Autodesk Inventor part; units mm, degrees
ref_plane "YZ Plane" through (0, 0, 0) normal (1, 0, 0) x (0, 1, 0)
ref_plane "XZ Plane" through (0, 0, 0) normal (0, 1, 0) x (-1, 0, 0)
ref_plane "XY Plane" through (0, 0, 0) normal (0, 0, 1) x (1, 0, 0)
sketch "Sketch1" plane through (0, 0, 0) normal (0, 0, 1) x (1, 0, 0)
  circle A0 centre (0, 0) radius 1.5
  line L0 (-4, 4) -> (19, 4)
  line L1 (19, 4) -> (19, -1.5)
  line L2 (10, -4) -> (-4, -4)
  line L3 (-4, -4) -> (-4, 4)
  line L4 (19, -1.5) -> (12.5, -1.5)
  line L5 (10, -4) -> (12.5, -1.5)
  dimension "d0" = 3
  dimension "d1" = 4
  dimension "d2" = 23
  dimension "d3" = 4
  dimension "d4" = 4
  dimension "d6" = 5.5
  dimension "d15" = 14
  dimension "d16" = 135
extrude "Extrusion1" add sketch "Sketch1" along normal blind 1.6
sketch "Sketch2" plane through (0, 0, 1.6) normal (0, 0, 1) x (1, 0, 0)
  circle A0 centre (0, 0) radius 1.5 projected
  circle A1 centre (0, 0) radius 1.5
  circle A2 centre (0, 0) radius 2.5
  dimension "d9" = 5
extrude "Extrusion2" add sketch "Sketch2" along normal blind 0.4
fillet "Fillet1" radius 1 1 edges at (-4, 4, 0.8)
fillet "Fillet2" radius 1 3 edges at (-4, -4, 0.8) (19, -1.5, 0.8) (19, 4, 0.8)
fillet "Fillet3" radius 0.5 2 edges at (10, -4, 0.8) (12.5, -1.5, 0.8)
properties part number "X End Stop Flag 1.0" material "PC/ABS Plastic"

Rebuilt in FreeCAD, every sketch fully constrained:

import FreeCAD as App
import Part
import Sketcher
from FreeCAD import Vector
Q = App.Units.Quantity


def edges_at(feature, points):
    """Names of the edges that pass closest to the given points."""
    edges = feature.Shape.Edges
    near = lambda p: min(range(len(edges)), key=lambda i: edges[i].distToShape(Part.Vertex(*p))[0])
    return sorted({f"Edge{near(p) + 1}" for p in points})


def add_polygon(sketch, points):
    """Adds a closed chain of lines whose ends are joined by coincident constraints."""
    first, n = sketch.GeometryCount, len(points)
    for a, b in zip(points, points[1:] + points[:1]):
        sketch.addGeometry(Part.LineSegment(App.Vector(*a, 0), App.Vector(*b, 0)), False)
    for i in range(n):
        sketch.addConstraint(Sketcher.Constraint("Coincident", first + i, 2, first + (i + 1) % n, 1))

doc = App.newDocument("Part")
body = doc.addObject("PartDesign::Body", "Body")

# Sketch on XY plane
sketch1 = body.newObject("Sketcher::SketchObject", "Sketch")
sketch1.AttachmentSupport = (doc.getObject("XY_Plane"), [""])
sketch1.MapMode = "FlatFace"
add_polygon(sketch1, [(19, 4), (-4, 4), (-4, -4), (10, -4), (12.5, -1.5), (19, -1.5)])  # lines 0-5
sketch1.addGeometry(Part.Circle(Vector(0, 0, 0), Vector(0, 0, 1), 1.5), False)  # 6
sketch1.addConstraint([
    Sketcher.Constraint("Horizontal", 0),
    Sketcher.Constraint("Vertical", 1),
    Sketcher.Constraint("Horizontal", 2),
    Sketcher.Constraint("Horizontal", 4),
    Sketcher.Constraint("Vertical", 5),
    Sketcher.Constraint("Coincident", 6, 3, -1, 1),
    Sketcher.Constraint("Diameter", 6, Q("3 mm")),
    Sketcher.Constraint("DistanceX", 0, 2, 0, 1, Q("23 mm")),
    Sketcher.Constraint("DistanceX", 2, 1, 2, 2, Q("14 mm")),
    Sketcher.Constraint("DistanceY", 5, 1, 5, 2, Q("5.5 mm")),
    Sketcher.Constraint("DistanceX", 0, 2, -1, 1, Q("4 mm")),
    Sketcher.Constraint("DistanceY", -1, 1, 0, 2, Q("4 mm")),
    Sketcher.Constraint("DistanceY", 1, 2, -1, 1, Q("4 mm")),
    Sketcher.Constraint("Angle", 3, Q("45 deg")),
])
pad1 = body.newObject("PartDesign::Pad", "Pad")
pad1.Profile = sketch1
pad1.Length = 1.6

# Sketch on XY plane
sketch2 = body.newObject("Sketcher::SketchObject", "Sketch001")
sketch2.AttachmentSupport = (doc.getObject("XY_Plane"), [""])
sketch2.MapMode = "FlatFace"
sketch2.AttachmentOffset = App.Placement(Vector(0, 0, 1.6), App.Rotation())
sketch2.addGeometry([
    Part.Circle(Vector(0, 0, 0), Vector(0, 0, 1), 2.5),
    Part.Circle(Vector(0, 0, 0), Vector(0, 0, 1), 1.5),
], False)
sketch2.addConstraint([
    Sketcher.Constraint("Coincident", 0, 3, -1, 1),
    Sketcher.Constraint("Coincident", 1, 3, -1, 1),
    Sketcher.Constraint("Diameter", 0, Q("5 mm")),
    Sketcher.Constraint("Diameter", 1, Q("3 mm")),
])
pad2 = body.newObject("PartDesign::Pad", "Pad001")
pad2.Profile = sketch2
pad2.Length = 0.4
doc.recompute()

fillet = body.newObject("PartDesign::Fillet", "Fillet")
fillet.Base = (pad2, edges_at(pad2, [(-4, 4, 0.8)]))
fillet.Radius = 1
doc.recompute()

fillet2 = body.newObject("PartDesign::Fillet", "Fillet001")
fillet2.Base = (fillet, edges_at(fillet, [(-4, -4, 0.8), (19, -1.5, 0.8), (19, 4, 0.8)]))
fillet2.Radius = 1
doc.recompute()

fillet3 = body.newObject("PartDesign::Fillet", "Fillet002")
fillet3.Base = (fillet2, edges_at(fillet2, [(10, -4, 0.8), (12.5, -1.5, 0.8)]))
fillet3.Radius = 0.5

doc.recompute()
